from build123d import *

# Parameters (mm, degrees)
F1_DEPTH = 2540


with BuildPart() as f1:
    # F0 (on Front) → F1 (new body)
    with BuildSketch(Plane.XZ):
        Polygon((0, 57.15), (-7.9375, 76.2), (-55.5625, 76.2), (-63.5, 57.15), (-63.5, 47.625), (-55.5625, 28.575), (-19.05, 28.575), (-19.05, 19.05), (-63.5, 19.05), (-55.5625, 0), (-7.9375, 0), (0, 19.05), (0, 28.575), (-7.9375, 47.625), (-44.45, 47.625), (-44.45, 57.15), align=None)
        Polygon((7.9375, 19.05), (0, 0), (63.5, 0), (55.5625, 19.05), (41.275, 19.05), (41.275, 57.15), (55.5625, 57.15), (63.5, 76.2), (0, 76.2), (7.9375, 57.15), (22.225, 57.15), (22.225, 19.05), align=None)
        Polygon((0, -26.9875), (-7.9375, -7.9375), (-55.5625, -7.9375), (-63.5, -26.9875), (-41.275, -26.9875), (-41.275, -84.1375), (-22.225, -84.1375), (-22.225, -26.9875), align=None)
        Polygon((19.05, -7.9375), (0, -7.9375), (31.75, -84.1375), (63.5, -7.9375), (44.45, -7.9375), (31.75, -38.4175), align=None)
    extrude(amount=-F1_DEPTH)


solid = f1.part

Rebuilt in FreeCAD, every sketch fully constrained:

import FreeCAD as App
import Part
import Sketcher
Q = App.Units.Quantity

doc = App.newDocument("Part")
body = doc.addObject("PartDesign::Body", "Body")
body.AllowCompound = True

# Sketch on XZ plane
sketch1 = body.newObject("Sketcher::SketchObject", "Sketch")
sketch1.AttachmentSupport = (doc.getObject("XZ_Plane"), [""])
sketch1.MapMode = "FlatFace"
sketch1.addGeometry([
    Part.LineSegment(App.Vector(0, 57, 0), App.Vector(-8, 76, 0)),  # 0
    Part.LineSegment(App.Vector(-8, 76, 0), App.Vector(-56, 76, 0)),  # 1
    Part.LineSegment(App.Vector(-56, 76, 0), App.Vector(-64, 57, 0)),  # 2
    Part.LineSegment(App.Vector(-64, 57, 0), App.Vector(-64, 48, 0)),  # 3
    Part.LineSegment(App.Vector(-64, 48, 0), App.Vector(-56, 29, 0)),  # 4
    Part.LineSegment(App.Vector(-56, 29, 0), App.Vector(-19, 29, 0)),  # 5
    Part.LineSegment(App.Vector(-19, 29, 0), App.Vector(-19, 19, 0)),  # 6
    Part.LineSegment(App.Vector(-19, 19, 0), App.Vector(-64, 19, 0)),  # 7
    Part.LineSegment(App.Vector(-64, 19, 0), App.Vector(-56, 0, 0)),  # 8
    Part.LineSegment(App.Vector(-56, 0, 0), App.Vector(-8, 0, 0)),  # 9
    Part.LineSegment(App.Vector(-8, 0, 0), App.Vector(0, 19, 0)),  # 10
    Part.LineSegment(App.Vector(0, 19, 0), App.Vector(0, 29, 0)),  # 11
    Part.LineSegment(App.Vector(0, 29, 0), App.Vector(-8, 48, 0)),  # 12
    Part.LineSegment(App.Vector(-8, 48, 0), App.Vector(-44, 48, 0)),  # 13
    Part.LineSegment(App.Vector(-44, 48, 0), App.Vector(-44, 57, 0)),  # 14
    Part.LineSegment(App.Vector(-44, 57, 0), App.Vector(0, 57, 0)),  # 15
    Part.LineSegment(App.Vector(8, 19, 0), App.Vector(0, 0, 0)),  # 16
    Part.LineSegment(App.Vector(0, 0, 0), App.Vector(64, 0, 0)),  # 17
    Part.LineSegment(App.Vector(64, 0, 0), App.Vector(56, 19, 0)),  # 18
    Part.LineSegment(App.Vector(56, 19, 0), App.Vector(41, 19, 0)),  # 19
    Part.LineSegment(App.Vector(41, 19, 0), App.Vector(41, 57, 0)),  # 20
    Part.LineSegment(App.Vector(41, 57, 0), App.Vector(56, 57, 0)),  # 21
    Part.LineSegment(App.Vector(56, 57, 0), App.Vector(64, 76, 0)),  # 22
    Part.LineSegment(App.Vector(64, 76, 0), App.Vector(0, 76, 0)),  # 23
    Part.LineSegment(App.Vector(0, 76, 0), App.Vector(8, 57, 0)),  # 24
    Part.LineSegment(App.Vector(8, 57, 0), App.Vector(22, 57, 0)),  # 25
    Part.LineSegment(App.Vector(22, 57, 0), App.Vector(22, 19, 0)),  # 26
    Part.LineSegment(App.Vector(22, 19, 0), App.Vector(8, 19, 0)),  # 27
    Part.LineSegment(App.Vector(0, -27, 0), App.Vector(-8, -8, 0)),  # 28
    Part.LineSegment(App.Vector(-8, -8, 0), App.Vector(-56, -8, 0)),  # 29
    Part.LineSegment(App.Vector(-56, -8, 0), App.Vector(-64, -27, 0)),  # 30
    Part.LineSegment(App.Vector(-64, -27, 0), App.Vector(-41, -27, 0)),  # 31
    Part.LineSegment(App.Vector(-41, -27, 0), App.Vector(-41, -84, 0)),  # 32
    Part.LineSegment(App.Vector(-41, -84, 0), App.Vector(-22, -84, 0)),  # 33
    Part.LineSegment(App.Vector(-22, -84, 0), App.Vector(-22, -27, 0)),  # 34
    Part.LineSegment(App.Vector(-22, -27, 0), App.Vector(0, -27, 0)),  # 35
    Part.LineSegment(App.Vector(19, -8, 0), App.Vector(0, -8, 0)),  # 36
    Part.LineSegment(App.Vector(0, -8, 0), App.Vector(32, -84, 0)),  # 37
    Part.LineSegment(App.Vector(32, -84, 0), App.Vector(64, -8, 0)),  # 38
    Part.LineSegment(App.Vector(64, -8, 0), App.Vector(44, -8, 0)),  # 39
    Part.LineSegment(App.Vector(44, -8, 0), App.Vector(32, -38, 0)),  # 40
    Part.LineSegment(App.Vector(32, -38, 0), App.Vector(19, -8, 0)),  # 41
], False)
sketch1.addConstraint([
    Sketcher.Constraint("Coincident", 0, 2, 1, 1),
    Sketcher.Constraint("Coincident", 1, 2, 2, 1),
    Sketcher.Constraint("Coincident", 2, 2, 3, 1),
    Sketcher.Constraint("Coincident", 3, 2, 4, 1),
    Sketcher.Constraint("Coincident", 4, 2, 5, 1),
    Sketcher.Constraint("Coincident", 5, 2, 6, 1),
    Sketcher.Constraint("Coincident", 6, 2, 7, 1),
    Sketcher.Constraint("Coincident", 7, 2, 8, 1),
    Sketcher.Constraint("Coincident", 8, 2, 9, 1),
    Sketcher.Constraint("Coincident", 9, 2, 10, 1),
    Sketcher.Constraint("Coincident", 10, 2, 11, 1),
    Sketcher.Constraint("Coincident", 11, 2, 12, 1),
    Sketcher.Constraint("Coincident", 12, 2, 13, 1),
    Sketcher.Constraint("Coincident", 13, 2, 14, 1),
    Sketcher.Constraint("Coincident", 14, 2, 15, 1),
    Sketcher.Constraint("Coincident", 15, 2, 0, 1),
    Sketcher.Constraint("Coincident", 16, 2, 17, 1),
    Sketcher.Constraint("Coincident", 17, 2, 18, 1),
    Sketcher.Constraint("Coincident", 18, 2, 19, 1),
    Sketcher.Constraint("Coincident", 19, 2, 20, 1),
    Sketcher.Constraint("Coincident", 20, 2, 21, 1),
    Sketcher.Constraint("Coincident", 21, 2, 22, 1),
    Sketcher.Constraint("Coincident", 22, 2, 23, 1),
    Sketcher.Constraint("Coincident", 23, 2, 24, 1),
    Sketcher.Constraint("Coincident", 24, 2, 25, 1),
    Sketcher.Constraint("Coincident", 25, 2, 26, 1),
    Sketcher.Constraint("Coincident", 26, 2, 27, 1),
    Sketcher.Constraint("Coincident", 27, 2, 16, 1),
    Sketcher.Constraint("Coincident", 28, 2, 29, 1),
    Sketcher.Constraint("Coincident", 29, 2, 30, 1),
    Sketcher.Constraint("Coincident", 30, 2, 31, 1),
    Sketcher.Constraint("Coincident", 31, 2, 32, 1),
    Sketcher.Constraint("Coincident", 32, 2, 33, 1),
    Sketcher.Constraint("Coincident", 33, 2, 34, 1),
    Sketcher.Constraint("Coincident", 34, 2, 35, 1),
    Sketcher.Constraint("Coincident", 35, 2, 28, 1),
    Sketcher.Constraint("Coincident", 36, 2, 37, 1),
    Sketcher.Constraint("Coincident", 37, 2, 38, 1),
    Sketcher.Constraint("Coincident", 38, 2, 39, 1),
    Sketcher.Constraint("Coincident", 39, 2, 40, 1),
    Sketcher.Constraint("Coincident", 40, 2, 41, 1),
    Sketcher.Constraint("Coincident", 41, 2, 36, 1),
    Sketcher.Constraint("Horizontal", 1),
    Sketcher.Constraint("Vertical", 3),
    Sketcher.Constraint("Horizontal", 5),
    Sketcher.Constraint("Vertical", 6),
    Sketcher.Constraint("Horizontal", 7),
    Sketcher.Constraint("Horizontal", 9),
    Sketcher.Constraint("Vertical", 11),
    Sketcher.Constraint("Horizontal", 13),
    Sketcher.Constraint("Vertical", 14),
    Sketcher.Constraint("Horizontal", 15),
    Sketcher.Constraint("Horizontal", 17),
    Sketcher.Constraint("Horizontal", 19),
    Sketcher.Constraint("Vertical", 20),
    Sketcher.Constraint("Horizontal", 21),
    Sketcher.Constraint("Horizontal", 23),
    Sketcher.Constraint("Horizontal", 25),
    Sketcher.Constraint("Vertical", 26),
    Sketcher.Constraint("Horizontal", 27),
    Sketcher.Constraint("Horizontal", 29),
    Sketcher.Constraint("Horizontal", 31),
    Sketcher.Constraint("Vertical", 32),
    Sketcher.Constraint("Horizontal", 33),
    Sketcher.Constraint("Vertical", 34),
    Sketcher.Constraint("Horizontal", 35),
    Sketcher.Constraint("Horizontal", 36),
    Sketcher.Constraint("Horizontal", 39),
    Sketcher.Constraint("Coincident", 16, 2, -1, 1),
    Sketcher.Constraint("PointOnObject", 8, 2, -1),
    Sketcher.Constraint("PointOnObject", 10, 2, -2),
    Sketcher.Constraint("PointOnObject", 15, 2, -2),
    Sketcher.Constraint("PointOnObject", 23, 2, -2),
    Sketcher.Constraint("PointOnObject", 35, 2, -2),
    Sketcher.Constraint("PointOnObject", 36, 2, -2),
    Sketcher.Constraint("Parallel", 0, 4),
    Sketcher.Constraint("Parallel", 4, 8),
    Sketcher.Constraint("Parallel", 2, 10),
    Sketcher.Constraint("Parallel", 8, 12),
    Sketcher.Constraint("Parallel", 10, 16),
    Sketcher.Constraint("Parallel", 12, 18),
    Sketcher.Constraint("Parallel", 16, 22),
    Sketcher.Constraint("Parallel", 18, 24),
    Sketcher.Constraint("Parallel", 24, 28),
    Sketcher.Constraint("Parallel", 22, 30),
    Sketcher.Constraint("Parallel", 28, 37),
    Sketcher.Constraint("Parallel", 30, 38),
    Sketcher.Constraint("Parallel", 38, 40),
    Sketcher.Constraint("Parallel", 37, 41),
    Sketcher.Constraint("Horizontal", 7, 2, 10, 2),
    Sketcher.Constraint("Horizontal", 5, 2, 11, 2),
    Sketcher.Constraint("Horizontal", 3, 2, 12, 2),
    Sketcher.Constraint("Horizontal", 2, 2, 14, 2),
    Sketcher.Constraint("Horizontal", 10, 2, 18, 2),
    Sketcher.Constraint("Horizontal", 15, 2, 20, 2),
    Sketcher.Constraint("Horizontal", 1, 2, 22, 2),
    Sketcher.Constraint("Horizontal", 21, 2, 24, 2),
    Sketcher.Constraint("Horizontal", 19, 2, 26, 2),
    Sketcher.Constraint("Horizontal", 31, 2, 34, 2),
    Sketcher.Constraint("Horizontal", 29, 2, 36, 2),
    Sketcher.Constraint("Horizontal", 33, 2, 37, 2),
    Sketcher.Constraint("Horizontal", 36, 2, 38, 2),
    Sketcher.Constraint("Vertical", 1, 2, 4, 2),
    Sketcher.Constraint("Vertical", 3, 2, 7, 2),
    Sketcher.Constraint("Vertical", 4, 2, 8, 2),
    Sketcher.Constraint("Vertical", 0, 2, 9, 2),
    Sketcher.Constraint("Vertical", 18, 2, 21, 2),
    Sketcher.Constraint("Vertical", 12, 2, 28, 2),
    Sketcher.Constraint("Vertical", 8, 2, 29, 2),
    Sketcher.Constraint("Vertical", 22, 2, 38, 2),
    Sketcher.Constraint("Vertical", 37, 2, 40, 2),
    Sketcher.Constraint("Equal", 5, 13),
    Sketcher.Constraint("Equal", 21, 25),
    Sketcher.Constraint("Equal", 31, 35),
    Sketcher.Constraint("Equal", 33, 36),
    Sketcher.Constraint("Equal", 3, 6),
    Sketcher.Constraint("DistanceX", 17, 1, 17, 2, Q("2.5 in")),
    Sketcher.Constraint("DistanceY", 20, 1, 20, 2, Q("1.5 in")),
    Sketcher.Constraint("DistanceY", -1, 1, 0, 2, Q("3 in")),
    Sketcher.Constraint("DistanceX", 13, 2, 5, 2, Q("1 in")),
    Sketcher.Constraint("DistanceY", 32, 2, 29, 2, Q("3 in")),
    Sketcher.Constraint("DistanceX", 41, 2, 39, 2, Q("1 in")),
    Sketcher.Constraint("DistanceX", 7, 2, 7, 1, Q("1.75 in")),
    Sketcher.Constraint("DistanceX", 19, 2, 19, 1, Q("0.5625 in")),
    Sketcher.Constraint("DistanceY", 28, 2, -1, 1, Q("0.3125 in")),
])
pad1 = body.newObject("PartDesign::Pad", "Pad")
pad1.Profile = sketch1
pad1.Length = Q("100 in")
pad1.Reversed = True

doc.recompute()
